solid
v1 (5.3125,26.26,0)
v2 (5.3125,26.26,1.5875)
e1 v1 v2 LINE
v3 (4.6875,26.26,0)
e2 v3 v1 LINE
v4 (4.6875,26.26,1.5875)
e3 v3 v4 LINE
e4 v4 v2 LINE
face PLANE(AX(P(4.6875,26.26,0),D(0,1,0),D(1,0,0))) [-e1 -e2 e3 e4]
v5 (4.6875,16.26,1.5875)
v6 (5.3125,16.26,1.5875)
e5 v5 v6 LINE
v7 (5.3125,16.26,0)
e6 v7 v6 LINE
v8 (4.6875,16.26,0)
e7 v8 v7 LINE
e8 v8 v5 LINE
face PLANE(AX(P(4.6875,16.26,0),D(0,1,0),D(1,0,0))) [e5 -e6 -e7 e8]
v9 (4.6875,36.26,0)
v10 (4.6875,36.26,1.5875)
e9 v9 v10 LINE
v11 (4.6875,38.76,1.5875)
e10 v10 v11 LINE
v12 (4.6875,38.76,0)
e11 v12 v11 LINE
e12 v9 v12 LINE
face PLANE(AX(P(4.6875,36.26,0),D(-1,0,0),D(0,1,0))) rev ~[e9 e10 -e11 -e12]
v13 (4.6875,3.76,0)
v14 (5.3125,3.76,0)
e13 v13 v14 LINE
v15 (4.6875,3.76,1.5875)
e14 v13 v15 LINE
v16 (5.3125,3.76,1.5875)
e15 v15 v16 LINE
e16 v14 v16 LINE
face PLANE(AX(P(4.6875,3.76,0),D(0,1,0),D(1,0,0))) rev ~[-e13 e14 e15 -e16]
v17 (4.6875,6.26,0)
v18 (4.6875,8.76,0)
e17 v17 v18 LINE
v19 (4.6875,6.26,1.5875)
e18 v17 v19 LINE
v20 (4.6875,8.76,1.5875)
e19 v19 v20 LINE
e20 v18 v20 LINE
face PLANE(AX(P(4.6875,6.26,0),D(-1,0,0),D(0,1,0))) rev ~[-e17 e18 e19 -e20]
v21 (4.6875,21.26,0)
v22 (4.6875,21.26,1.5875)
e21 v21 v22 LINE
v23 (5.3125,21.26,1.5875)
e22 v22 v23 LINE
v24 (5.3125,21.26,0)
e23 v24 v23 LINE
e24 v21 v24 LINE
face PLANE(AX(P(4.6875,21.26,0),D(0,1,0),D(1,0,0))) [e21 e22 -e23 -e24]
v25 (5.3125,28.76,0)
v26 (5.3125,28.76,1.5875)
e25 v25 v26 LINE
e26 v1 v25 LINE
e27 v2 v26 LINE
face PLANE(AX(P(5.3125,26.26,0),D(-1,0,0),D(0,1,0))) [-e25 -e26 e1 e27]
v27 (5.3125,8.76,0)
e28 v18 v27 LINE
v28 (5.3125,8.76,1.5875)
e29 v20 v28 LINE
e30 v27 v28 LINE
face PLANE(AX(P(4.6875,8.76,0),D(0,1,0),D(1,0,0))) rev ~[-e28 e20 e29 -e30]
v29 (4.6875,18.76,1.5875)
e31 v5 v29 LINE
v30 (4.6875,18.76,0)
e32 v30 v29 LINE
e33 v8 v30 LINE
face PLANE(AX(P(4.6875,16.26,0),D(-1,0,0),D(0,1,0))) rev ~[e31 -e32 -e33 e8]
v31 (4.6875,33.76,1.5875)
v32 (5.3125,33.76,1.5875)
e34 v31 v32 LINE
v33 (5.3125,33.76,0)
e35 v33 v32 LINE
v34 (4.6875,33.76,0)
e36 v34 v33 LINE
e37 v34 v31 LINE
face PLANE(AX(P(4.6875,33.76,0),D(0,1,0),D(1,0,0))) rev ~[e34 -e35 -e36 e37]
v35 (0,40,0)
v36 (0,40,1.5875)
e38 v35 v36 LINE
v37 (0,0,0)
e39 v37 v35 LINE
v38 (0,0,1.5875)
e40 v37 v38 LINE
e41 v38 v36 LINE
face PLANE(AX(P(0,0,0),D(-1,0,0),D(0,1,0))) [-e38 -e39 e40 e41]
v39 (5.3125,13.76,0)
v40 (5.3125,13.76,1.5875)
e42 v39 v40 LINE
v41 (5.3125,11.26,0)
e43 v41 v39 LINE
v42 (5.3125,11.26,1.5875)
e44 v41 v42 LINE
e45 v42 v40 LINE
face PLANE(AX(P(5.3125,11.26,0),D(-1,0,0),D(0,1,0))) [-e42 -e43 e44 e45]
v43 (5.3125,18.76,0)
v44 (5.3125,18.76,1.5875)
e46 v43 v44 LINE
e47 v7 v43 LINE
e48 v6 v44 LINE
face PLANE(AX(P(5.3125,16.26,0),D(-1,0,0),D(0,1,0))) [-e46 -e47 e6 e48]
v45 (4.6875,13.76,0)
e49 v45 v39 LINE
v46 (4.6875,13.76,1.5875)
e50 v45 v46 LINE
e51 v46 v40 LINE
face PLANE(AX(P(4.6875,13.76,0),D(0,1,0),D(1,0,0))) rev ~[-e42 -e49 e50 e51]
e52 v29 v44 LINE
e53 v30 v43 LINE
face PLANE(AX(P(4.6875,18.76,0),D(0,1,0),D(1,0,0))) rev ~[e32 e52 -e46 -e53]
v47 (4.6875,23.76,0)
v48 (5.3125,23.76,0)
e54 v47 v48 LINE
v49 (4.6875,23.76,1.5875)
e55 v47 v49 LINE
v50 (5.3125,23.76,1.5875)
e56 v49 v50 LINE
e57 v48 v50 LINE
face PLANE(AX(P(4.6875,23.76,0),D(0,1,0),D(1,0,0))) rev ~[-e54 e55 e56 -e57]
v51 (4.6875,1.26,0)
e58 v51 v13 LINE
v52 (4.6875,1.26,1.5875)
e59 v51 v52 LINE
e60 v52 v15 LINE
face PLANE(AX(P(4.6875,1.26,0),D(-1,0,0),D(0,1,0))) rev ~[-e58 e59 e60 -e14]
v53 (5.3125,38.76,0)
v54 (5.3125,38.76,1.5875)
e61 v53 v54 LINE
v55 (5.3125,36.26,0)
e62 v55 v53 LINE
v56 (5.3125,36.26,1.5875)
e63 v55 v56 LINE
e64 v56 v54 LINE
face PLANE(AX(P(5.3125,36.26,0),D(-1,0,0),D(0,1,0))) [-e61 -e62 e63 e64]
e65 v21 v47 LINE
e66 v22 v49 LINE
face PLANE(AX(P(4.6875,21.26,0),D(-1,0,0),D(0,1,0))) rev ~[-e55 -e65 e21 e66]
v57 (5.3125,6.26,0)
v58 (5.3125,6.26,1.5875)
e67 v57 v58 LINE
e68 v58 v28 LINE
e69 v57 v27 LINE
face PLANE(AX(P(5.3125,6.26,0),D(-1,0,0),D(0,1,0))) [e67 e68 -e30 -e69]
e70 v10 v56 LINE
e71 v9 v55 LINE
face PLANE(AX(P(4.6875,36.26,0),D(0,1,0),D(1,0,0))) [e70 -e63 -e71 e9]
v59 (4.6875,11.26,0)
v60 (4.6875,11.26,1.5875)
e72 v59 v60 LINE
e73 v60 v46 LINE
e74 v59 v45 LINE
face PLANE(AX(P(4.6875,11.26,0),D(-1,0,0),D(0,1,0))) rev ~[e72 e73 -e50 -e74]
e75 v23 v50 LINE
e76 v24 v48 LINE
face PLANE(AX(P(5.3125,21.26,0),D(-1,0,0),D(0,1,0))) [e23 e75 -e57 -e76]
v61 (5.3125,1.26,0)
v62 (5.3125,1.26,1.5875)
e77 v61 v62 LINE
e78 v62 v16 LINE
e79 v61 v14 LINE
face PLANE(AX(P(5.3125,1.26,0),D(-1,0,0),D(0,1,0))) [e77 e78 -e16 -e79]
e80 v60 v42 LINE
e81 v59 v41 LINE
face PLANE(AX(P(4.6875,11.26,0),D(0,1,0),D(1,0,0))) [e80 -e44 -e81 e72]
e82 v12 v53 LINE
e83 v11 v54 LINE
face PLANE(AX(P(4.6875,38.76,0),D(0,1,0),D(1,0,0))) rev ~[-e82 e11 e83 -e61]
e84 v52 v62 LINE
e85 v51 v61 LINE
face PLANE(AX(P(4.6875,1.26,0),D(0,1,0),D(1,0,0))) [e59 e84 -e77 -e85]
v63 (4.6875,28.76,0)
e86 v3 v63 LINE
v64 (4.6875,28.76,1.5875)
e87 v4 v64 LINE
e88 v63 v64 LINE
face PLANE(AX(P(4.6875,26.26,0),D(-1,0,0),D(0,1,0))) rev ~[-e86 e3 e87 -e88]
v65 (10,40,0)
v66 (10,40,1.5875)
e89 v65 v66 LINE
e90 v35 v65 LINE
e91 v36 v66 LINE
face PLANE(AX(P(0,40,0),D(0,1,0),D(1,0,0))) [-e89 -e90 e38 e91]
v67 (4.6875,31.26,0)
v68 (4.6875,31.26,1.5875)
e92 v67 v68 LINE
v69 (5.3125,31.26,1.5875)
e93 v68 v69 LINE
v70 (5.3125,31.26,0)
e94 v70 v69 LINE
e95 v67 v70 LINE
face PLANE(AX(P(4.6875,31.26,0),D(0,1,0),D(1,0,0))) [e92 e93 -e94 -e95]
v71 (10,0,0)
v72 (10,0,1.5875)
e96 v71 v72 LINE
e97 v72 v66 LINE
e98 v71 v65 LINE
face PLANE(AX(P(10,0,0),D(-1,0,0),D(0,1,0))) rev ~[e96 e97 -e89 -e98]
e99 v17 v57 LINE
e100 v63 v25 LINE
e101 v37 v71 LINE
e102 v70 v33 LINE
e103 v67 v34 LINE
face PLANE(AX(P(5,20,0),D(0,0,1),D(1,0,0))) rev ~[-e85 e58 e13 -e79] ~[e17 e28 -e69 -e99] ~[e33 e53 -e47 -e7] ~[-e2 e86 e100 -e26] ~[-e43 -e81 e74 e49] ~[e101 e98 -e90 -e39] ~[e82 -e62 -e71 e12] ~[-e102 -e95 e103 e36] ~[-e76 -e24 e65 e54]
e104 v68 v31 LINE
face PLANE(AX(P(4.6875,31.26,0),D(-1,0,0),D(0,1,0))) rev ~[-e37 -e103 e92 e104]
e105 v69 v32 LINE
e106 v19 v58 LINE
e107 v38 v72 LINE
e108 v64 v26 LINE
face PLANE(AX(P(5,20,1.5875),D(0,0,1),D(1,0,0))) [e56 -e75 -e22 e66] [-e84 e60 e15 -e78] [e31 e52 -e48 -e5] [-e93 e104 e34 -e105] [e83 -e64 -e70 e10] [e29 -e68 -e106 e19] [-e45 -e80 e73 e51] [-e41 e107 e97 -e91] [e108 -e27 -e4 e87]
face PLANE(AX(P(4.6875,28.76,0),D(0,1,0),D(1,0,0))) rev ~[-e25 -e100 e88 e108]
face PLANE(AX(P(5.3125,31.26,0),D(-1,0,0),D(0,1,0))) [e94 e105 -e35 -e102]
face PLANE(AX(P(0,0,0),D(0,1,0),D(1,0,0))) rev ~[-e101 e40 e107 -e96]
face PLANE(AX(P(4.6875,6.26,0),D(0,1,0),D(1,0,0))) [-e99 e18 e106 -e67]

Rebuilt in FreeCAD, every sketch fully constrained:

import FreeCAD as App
import Part
import Sketcher
from FreeCAD import Vector
Q = App.Units.Quantity

doc = App.newDocument("Part")
body = doc.addObject("PartDesign::Body", "Body")

# Sketch on XY plane
sketch1 = body.newObject("Sketcher::SketchObject", "Sketch")
sketch1.AttachmentSupport = (doc.getObject("XY_Plane"), [""])
sketch1.MapMode = "FlatFace"
sketch1.addGeometry([
    Part.LineSegment(Vector(0, 40, 0), Vector(0, 0, 0)),  # 0
    Part.LineSegment(Vector(0, 0, 0), Vector(10, 0, 0)),  # 1
    Part.LineSegment(Vector(10, 0, 0), Vector(10, 40, 0)),  # 2
    Part.LineSegment(Vector(10, 40, 0), Vector(0, 40, 0)),  # 3
    Part.LineSegment(Vector(5.3, 1.3, 0), Vector(4.7, 1.3, 0)),  # 4
    Part.LineSegment(Vector(4.7, 1.3, 0), Vector(4.7, 3.8, 0)),  # 5
    Part.LineSegment(Vector(4.7, 3.8, 0), Vector(5.3, 3.8, 0)),  # 6
    Part.LineSegment(Vector(5.3, 3.8, 0), Vector(5.3, 1.3, 0)),  # 7
    Part.LineSegment(Vector(5.3, 6.3, 0), Vector(4.7, 6.3, 0)),  # 8
    Part.LineSegment(Vector(4.7, 6.3, 0), Vector(4.7, 8.8, 0)),  # 9
    Part.LineSegment(Vector(4.7, 8.8, 0), Vector(5.3, 8.8, 0)),  # 10
    Part.LineSegment(Vector(5.3, 8.8, 0), Vector(5.3, 6.3, 0)),  # 11
    Part.LineSegment(Vector(5.3, 11.3, 0), Vector(4.7, 11.3, 0)),  # 12
    Part.LineSegment(Vector(4.7, 11.3, 0), Vector(4.7, 13.8, 0)),  # 13
    Part.LineSegment(Vector(4.7, 13.8, 0), Vector(5.3, 13.8, 0)),  # 14
    Part.LineSegment(Vector(5.3, 13.8, 0), Vector(5.3, 11.3, 0)),  # 15
    Part.LineSegment(Vector(5.3, 16.3, 0), Vector(4.7, 16.3, 0)),  # 16
    Part.LineSegment(Vector(4.7, 16.3, 0), Vector(4.7, 18.8, 0)),  # 17
    Part.LineSegment(Vector(4.7, 18.8, 0), Vector(5.3, 18.8, 0)),  # 18
    Part.LineSegment(Vector(5.3, 18.8, 0), Vector(5.3, 16.3, 0)),  # 19
    Part.LineSegment(Vector(5.3, 21.3, 0), Vector(4.7, 21.3, 0)),  # 20
    Part.LineSegment(Vector(4.7, 21.3, 0), Vector(4.7, 23.8, 0)),  # 21
    Part.LineSegment(Vector(4.7, 23.8, 0), Vector(5.3, 23.8, 0)),  # 22
    Part.LineSegment(Vector(5.3, 23.8, 0), Vector(5.3, 21.3, 0)),  # 23
    Part.LineSegment(Vector(5.3, 26.3, 0), Vector(4.7, 26.3, 0)),  # 24
    Part.LineSegment(Vector(4.7, 26.3, 0), Vector(4.7, 28.8, 0)),  # 25
    Part.LineSegment(Vector(4.7, 28.8, 0), Vector(5.3, 28.8, 0)),  # 26
    Part.LineSegment(Vector(5.3, 28.8, 0), Vector(5.3, 26.3, 0)),  # 27
    Part.LineSegment(Vector(5.3, 31.3, 0), Vector(4.7, 31.3, 0)),  # 28
    Part.LineSegment(Vector(4.7, 31.3, 0), Vector(4.7, 33.8, 0)),  # 29
    Part.LineSegment(Vector(4.7, 33.8, 0), Vector(5.3, 33.8, 0)),  # 30
    Part.LineSegment(Vector(5.3, 33.8, 0), Vector(5.3, 31.3, 0)),  # 31
    Part.LineSegment(Vector(5.3, 36.3, 0), Vector(4.7, 36.3, 0)),  # 32
    Part.LineSegment(Vector(4.7, 36.3, 0), Vector(4.7, 38.8, 0)),  # 33
    Part.LineSegment(Vector(4.7, 38.8, 0), Vector(5.3, 38.8, 0)),  # 34
    Part.LineSegment(Vector(5.3, 38.8, 0), Vector(5.3, 36.3, 0)),  # 35
], False)
sketch1.addConstraint([
    Sketcher.Constraint("Coincident", 0, 2, 1, 1),
    Sketcher.Constraint("Coincident", 1, 2, 2, 1),
    Sketcher.Constraint("Coincident", 2, 2, 3, 1),
    Sketcher.Constraint("Coincident", 3, 2, 0, 1),
    Sketcher.Constraint("Coincident", 4, 2, 5, 1),
    Sketcher.Constraint("Coincident", 5, 2, 6, 1),
    Sketcher.Constraint("Coincident", 6, 2, 7, 1),
    Sketcher.Constraint("Coincident", 7, 2, 4, 1),
    Sketcher.Constraint("Coincident", 8, 2, 9, 1),
    Sketcher.Constraint("Coincident", 9, 2, 10, 1),
    Sketcher.Constraint("Coincident", 10, 2, 11, 1),
    Sketcher.Constraint("Coincident", 11, 2, 8, 1),
    Sketcher.Constraint("Coincident", 12, 2, 13, 1),
    Sketcher.Constraint("Coincident", 13, 2, 14, 1),
    Sketcher.Constraint("Coincident", 14, 2, 15, 1),
    Sketcher.Constraint("Coincident", 15, 2, 12, 1),
    Sketcher.Constraint("Coincident", 16, 2, 17, 1),
    Sketcher.Constraint("Coincident", 17, 2, 18, 1),
    Sketcher.Constraint("Coincident", 18, 2, 19, 1),
    Sketcher.Constraint("Coincident", 19, 2, 16, 1),
    Sketcher.Constraint("Coincident", 20, 2, 21, 1),
    Sketcher.Constraint("Coincident", 21, 2, 22, 1),
    Sketcher.Constraint("Coincident", 22, 2, 23, 1),
    Sketcher.Constraint("Coincident", 23, 2, 20, 1),
    Sketcher.Constraint("Coincident", 24, 2, 25, 1),
    Sketcher.Constraint("Coincident", 25, 2, 26, 1),
    Sketcher.Constraint("Coincident", 26, 2, 27, 1),
    Sketcher.Constraint("Coincident", 27, 2, 24, 1),
    Sketcher.Constraint("Coincident", 28, 2, 29, 1),
    Sketcher.Constraint("Coincident", 29, 2, 30, 1),
    Sketcher.Constraint("Coincident", 30, 2, 31, 1),
    Sketcher.Constraint("Coincident", 31, 2, 28, 1),
    Sketcher.Constraint("Coincident", 32, 2, 33, 1),
    Sketcher.Constraint("Coincident", 33, 2, 34, 1),
    Sketcher.Constraint("Coincident", 34, 2, 35, 1),
    Sketcher.Constraint("Coincident", 35, 2, 32, 1),
    Sketcher.Constraint("Vertical", 0),
    Sketcher.Constraint("Horizontal", 1),
    Sketcher.Constraint("Vertical", 2),
    Sketcher.Constraint("Horizontal", 3),
    Sketcher.Constraint("Horizontal", 4),
    Sketcher.Constraint("Vertical", 5),
    Sketcher.Constraint("Horizontal", 6),
    Sketcher.Constraint("Vertical", 7),
    Sketcher.Constraint("Horizontal", 8),
    Sketcher.Constraint("Vertical", 9),
    Sketcher.Constraint("Horizontal", 10),
    Sketcher.Constraint("Vertical", 11),
    Sketcher.Constraint("Horizontal", 12),
    Sketcher.Constraint("Vertical", 13),
    Sketcher.Constraint("Horizontal", 14),
    Sketcher.Constraint("Vertical", 15),
    Sketcher.Constraint("Horizontal", 16),
    Sketcher.Constraint("Vertical", 17),
    Sketcher.Constraint("Horizontal", 18),
    Sketcher.Constraint("Vertical", 19),
    Sketcher.Constraint("Horizontal", 20),
    Sketcher.Constraint("Vertical", 21),
    Sketcher.Constraint("Horizontal", 22),
    Sketcher.Constraint("Vertical", 23),
    Sketcher.Constraint("Horizontal", 24),
    Sketcher.Constraint("Vertical", 25),
    Sketcher.Constraint("Horizontal", 26),
    Sketcher.Constraint("Vertical", 27),
    Sketcher.Constraint("Horizontal", 28),
    Sketcher.Constraint("Vertical", 29),
    Sketcher.Constraint("Horizontal", 30),
    Sketcher.Constraint("Vertical", 31),
    Sketcher.Constraint("Horizontal", 32),
    Sketcher.Constraint("Vertical", 33),
    Sketcher.Constraint("Horizontal", 34),
    Sketcher.Constraint("Vertical", 35),
    Sketcher.Constraint("Coincident", 0, 2, -1, 1),
    Sketcher.Constraint("Vertical", 5, 2, 8, 2),
    Sketcher.Constraint("Vertical", 7, 2, 10, 2),
    Sketcher.Constraint("Vertical", 9, 2, 12, 2),
    Sketcher.Constraint("Vertical", 11, 2, 14, 2),
    Sketcher.Constraint("Vertical", 13, 2, 16, 2),
    Sketcher.Constraint("Vertical", 15, 2, 18, 2),
    Sketcher.Constraint("Vertical", 17, 2, 20, 2),
    Sketcher.Constraint("Vertical", 19, 2, 22, 2),
    Sketcher.Constraint("Vertical", 21, 2, 24, 2),
    Sketcher.Constraint("Vertical", 23, 2, 26, 2),
    Sketcher.Constraint("Vertical", 25, 2, 28, 2),
    Sketcher.Constraint("Vertical", 27, 2, 30, 2),
    Sketcher.Constraint("Vertical", 29, 2, 32, 2),
    Sketcher.Constraint("Vertical", 31, 2, 34, 2),
    Sketcher.Constraint("Equal", 7, 9),
    Sketcher.Constraint("Equal", 11, 13),
    Sketcher.Constraint("Equal", 15, 17),
    Sketcher.Constraint("Equal", 19, 21),
    Sketcher.Constraint("Equal", 23, 25),
    Sketcher.Constraint("Equal", 27, 29),
    Sketcher.Constraint("Equal", 31, 33),
    Sketcher.Constraint("DistanceX", 1, 1, 1, 2, Q("10 mm")),
    Sketcher.Constraint("DistanceY", 0, 2, 0, 1, Q("40 mm")),
    Sketcher.Constraint("DistanceY", 5, 1, 5, 2, Q("2.5 mm")),
    Sketcher.Constraint("DistanceY", 4, 2, 8, 2, Q("5 mm")),
    Sketcher.Constraint("DistanceY", 8, 2, 12, 2, Q("5 mm")),
    Sketcher.Constraint("DistanceY", 12, 2, 16, 2, Q("5 mm")),
    Sketcher.Constraint("DistanceY", 16, 2, 20, 2, Q("5 mm")),
    Sketcher.Constraint("DistanceY", 20, 2, 24, 2, Q("5 mm")),
    Sketcher.Constraint("DistanceY", 24, 2, 28, 2, Q("5 mm")),
    Sketcher.Constraint("DistanceY", 28, 2, 32, 2, Q("5 mm")),
    Sketcher.Constraint("DistanceX", 4, 2, 4, 1, Q("0.625 mm")),
    Sketcher.Constraint("DistanceY", -1, 1, 4, 2, Q("1.26 mm")),
    Sketcher.Constraint("DistanceX", -1, 1, 4, 2, Q("4.6875 mm")),
])
pad1 = body.newObject("PartDesign::Pad", "Pad")
pad1.Profile = sketch1
pad1.Length = 1.5875

doc.recompute()
